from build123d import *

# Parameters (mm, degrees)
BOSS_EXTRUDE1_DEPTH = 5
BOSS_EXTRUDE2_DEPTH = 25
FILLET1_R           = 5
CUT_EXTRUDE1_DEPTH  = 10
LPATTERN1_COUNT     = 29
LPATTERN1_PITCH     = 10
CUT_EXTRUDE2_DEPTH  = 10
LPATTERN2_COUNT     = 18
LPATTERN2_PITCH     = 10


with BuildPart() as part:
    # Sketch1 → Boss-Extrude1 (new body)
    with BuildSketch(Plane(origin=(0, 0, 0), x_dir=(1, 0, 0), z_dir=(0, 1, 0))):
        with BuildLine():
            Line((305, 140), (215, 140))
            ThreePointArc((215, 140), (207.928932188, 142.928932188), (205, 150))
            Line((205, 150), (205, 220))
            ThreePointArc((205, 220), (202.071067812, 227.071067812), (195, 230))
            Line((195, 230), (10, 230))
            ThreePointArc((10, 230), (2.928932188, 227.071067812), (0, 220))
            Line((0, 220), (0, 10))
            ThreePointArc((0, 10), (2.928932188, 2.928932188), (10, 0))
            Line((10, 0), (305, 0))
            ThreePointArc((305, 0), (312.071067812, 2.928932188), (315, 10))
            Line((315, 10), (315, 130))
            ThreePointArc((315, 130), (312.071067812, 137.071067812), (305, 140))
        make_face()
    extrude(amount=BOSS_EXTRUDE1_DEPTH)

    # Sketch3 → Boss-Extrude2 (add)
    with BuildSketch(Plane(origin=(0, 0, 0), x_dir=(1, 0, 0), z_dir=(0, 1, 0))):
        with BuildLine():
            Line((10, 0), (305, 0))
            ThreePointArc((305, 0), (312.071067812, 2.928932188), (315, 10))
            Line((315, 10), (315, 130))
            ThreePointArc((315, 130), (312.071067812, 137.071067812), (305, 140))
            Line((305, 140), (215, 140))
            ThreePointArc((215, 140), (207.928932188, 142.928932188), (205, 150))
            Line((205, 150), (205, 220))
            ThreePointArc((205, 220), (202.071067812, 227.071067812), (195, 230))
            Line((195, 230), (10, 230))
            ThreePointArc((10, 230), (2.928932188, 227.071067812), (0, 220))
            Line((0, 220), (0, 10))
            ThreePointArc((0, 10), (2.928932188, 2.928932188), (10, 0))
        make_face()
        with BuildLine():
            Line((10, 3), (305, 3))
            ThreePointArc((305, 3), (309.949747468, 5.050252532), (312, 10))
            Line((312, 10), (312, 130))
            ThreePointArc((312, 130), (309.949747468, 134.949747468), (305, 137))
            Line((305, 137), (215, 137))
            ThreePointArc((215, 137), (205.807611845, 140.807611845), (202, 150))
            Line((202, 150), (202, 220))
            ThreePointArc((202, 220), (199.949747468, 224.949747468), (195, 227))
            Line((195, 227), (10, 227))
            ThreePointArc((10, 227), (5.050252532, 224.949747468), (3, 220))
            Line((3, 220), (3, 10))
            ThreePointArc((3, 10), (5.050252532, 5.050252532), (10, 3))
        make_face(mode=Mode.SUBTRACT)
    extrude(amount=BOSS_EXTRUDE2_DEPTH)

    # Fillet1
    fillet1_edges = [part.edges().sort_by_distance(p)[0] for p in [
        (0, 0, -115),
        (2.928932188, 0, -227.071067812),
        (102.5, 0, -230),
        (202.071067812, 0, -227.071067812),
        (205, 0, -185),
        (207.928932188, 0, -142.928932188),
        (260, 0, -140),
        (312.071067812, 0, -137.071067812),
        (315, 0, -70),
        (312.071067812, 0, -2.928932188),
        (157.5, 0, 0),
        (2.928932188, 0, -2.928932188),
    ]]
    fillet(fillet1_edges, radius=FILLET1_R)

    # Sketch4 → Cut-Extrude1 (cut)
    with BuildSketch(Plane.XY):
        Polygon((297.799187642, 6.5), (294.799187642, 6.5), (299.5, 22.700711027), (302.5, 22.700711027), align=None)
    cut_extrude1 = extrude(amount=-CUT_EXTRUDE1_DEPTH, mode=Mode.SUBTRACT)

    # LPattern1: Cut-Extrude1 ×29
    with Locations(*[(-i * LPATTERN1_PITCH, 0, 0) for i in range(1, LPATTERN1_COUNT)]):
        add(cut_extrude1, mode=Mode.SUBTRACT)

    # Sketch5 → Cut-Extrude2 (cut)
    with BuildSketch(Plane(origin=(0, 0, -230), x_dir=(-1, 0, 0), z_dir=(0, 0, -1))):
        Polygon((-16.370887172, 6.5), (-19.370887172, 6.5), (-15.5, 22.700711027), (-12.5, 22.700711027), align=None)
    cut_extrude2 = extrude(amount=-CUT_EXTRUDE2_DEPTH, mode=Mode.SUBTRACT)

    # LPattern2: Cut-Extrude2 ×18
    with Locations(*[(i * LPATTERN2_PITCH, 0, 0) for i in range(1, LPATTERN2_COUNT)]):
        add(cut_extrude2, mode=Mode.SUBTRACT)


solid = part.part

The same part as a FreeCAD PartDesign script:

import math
import FreeCAD as App
import Part
import Sketcher
from FreeCAD import Vector


def edges_at(feature, points):
    """Names of the edges that pass closest to the given points."""
    edges = feature.Shape.Edges
    near = lambda p: min(range(len(edges)), key=lambda i: edges[i].distToShape(Part.Vertex(*p))[0])
    return sorted({f"Edge{near(p) + 1}" for p in points})

doc = App.newDocument("Part")
body = doc.addObject("PartDesign::Body", "Body")

# Sketch on XZ plane
sketch1 = body.newObject("Sketcher::SketchObject", "Sketch")
sketch1.AttachmentSupport = (doc.getObject("XZ_Plane"), [""])
sketch1.MapMode = "FlatFace"
sketch1.addGeometry([
    Part.LineSegment(Vector(305, -140, 0), Vector(215, -140, 0)),  # 0
    Part.ArcOfCircle(Part.Circle(Vector(215, -150, 0), Vector(0, 0, 1), 10), math.radians(90), math.radians(180)),  # 1
    Part.LineSegment(Vector(205, -150, 0), Vector(205, -220, 0)),  # 2
    Part.ArcOfCircle(Part.Circle(Vector(195, -220, 0), Vector(0, 0, 1), 10), math.radians(-90), math.radians(0)),  # 3
    Part.LineSegment(Vector(195, -230, 0), Vector(10, -230, 0)),  # 4
    Part.ArcOfCircle(Part.Circle(Vector(10, -220, 0), Vector(0, 0, 1), 10), math.radians(180), math.radians(270)),  # 5
    Part.LineSegment(Vector(0, -220, 0), Vector(0, -10, 0)),  # 6
    Part.ArcOfCircle(Part.Circle(Vector(10, -10, 0), Vector(0, 0, 1), 10), math.radians(90), math.radians(180)),  # 7
    Part.LineSegment(Vector(10, 0, 0), Vector(305, 0, 0)),  # 8
    Part.ArcOfCircle(Part.Circle(Vector(305, -10, 0), Vector(0, 0, 1), 10), math.radians(0), math.radians(90)),  # 9
    Part.LineSegment(Vector(315, -10, 0), Vector(315, -130, 0)),  # 10
    Part.ArcOfCircle(Part.Circle(Vector(305, -130, 0), Vector(0, 0, 1), 10), math.radians(-90), math.radians(0)),  # 11
], False)
sketch1.addConstraint([
    Sketcher.Constraint("Tangent", 0, 2, 1, 1),
    Sketcher.Constraint("Tangent", 1, 2, 2, 1),
    Sketcher.Constraint("Tangent", 2, 2, 3, 2),
    Sketcher.Constraint("Tangent", 3, 1, 4, 1),
    Sketcher.Constraint("Tangent", 4, 2, 5, 2),
    Sketcher.Constraint("Tangent", 5, 1, 6, 1),
    Sketcher.Constraint("Tangent", 6, 2, 7, 2),
    Sketcher.Constraint("Tangent", 7, 1, 8, 1),
    Sketcher.Constraint("Tangent", 8, 2, 9, 2),
    Sketcher.Constraint("Tangent", 9, 1, 10, 1),
    Sketcher.Constraint("Tangent", 10, 2, 11, 2),
    Sketcher.Constraint("Tangent", 11, 1, 0, 1),
    Sketcher.Constraint("Horizontal", 0),
    Sketcher.Constraint("Vertical", 2),
    Sketcher.Constraint("Horizontal", 4),
    Sketcher.Constraint("Vertical", 6),
    Sketcher.Constraint("Horizontal", 8),
    Sketcher.Constraint("Vertical", 10),
    Sketcher.Constraint("Equal", 1, 3),
    Sketcher.Constraint("Equal", 3, 5),
    Sketcher.Constraint("Equal", 5, 7),
    Sketcher.Constraint("Equal", 7, 9),
    Sketcher.Constraint("Equal", 9, 11),
    Sketcher.Constraint("PointOnObject", 5, 1, -2),
    Sketcher.Constraint("PointOnObject", 7, 1, -1),
    Sketcher.Constraint("Radius", 1, 10.0),
    Sketcher.Constraint("DistanceX", 0, 2, 0, 1, 90.0),
    Sketcher.Constraint("DistanceX", 4, 2, 4, 1, 185.0),
    Sketcher.Constraint("DistanceY", 2, 2, 2, 1, 70.0),
    Sketcher.Constraint("DistanceY", 6, 1, 6, 2, 210.0),
])
pad1 = body.newObject("PartDesign::Pad", "Pad")
pad1.Profile = sketch1
pad1.Length = 5
pad1.Reversed = True

# Sketch on XZ plane
sketch2 = body.newObject("Sketcher::SketchObject", "Sketch001")
sketch2.AttachmentSupport = (doc.getObject("XZ_Plane"), [""])
sketch2.MapMode = "FlatFace"
sketch2.addGeometry([
    Part.LineSegment(Vector(10, 0, 0), Vector(305, 0, 0)),  # 0
    Part.ArcOfCircle(Part.Circle(Vector(305, -10, 0), Vector(0, 0, 1), 10), math.radians(0), math.radians(90)),  # 1
    Part.LineSegment(Vector(315, -10, 0), Vector(315, -130, 0)),  # 2
    Part.ArcOfCircle(Part.Circle(Vector(305, -130, 0), Vector(0, 0, 1), 10), math.radians(-90), math.radians(0)),  # 3
    Part.LineSegment(Vector(305, -140, 0), Vector(215, -140, 0)),  # 4
    Part.ArcOfCircle(Part.Circle(Vector(215, -150, 0), Vector(0, 0, 1), 10), math.radians(90), math.radians(180)),  # 5
    Part.LineSegment(Vector(205, -150, 0), Vector(205, -220, 0)),  # 6
    Part.ArcOfCircle(Part.Circle(Vector(195, -220, 0), Vector(0, 0, 1), 10), math.radians(-90), math.radians(0)),  # 7
    Part.LineSegment(Vector(195, -230, 0), Vector(10, -230, 0)),  # 8
    Part.ArcOfCircle(Part.Circle(Vector(10, -220, 0), Vector(0, 0, 1), 10), math.radians(180), math.radians(270)),  # 9
    Part.LineSegment(Vector(0, -220, 0), Vector(0, -10, 0)),  # 10
    Part.ArcOfCircle(Part.Circle(Vector(10, -10, 0), Vector(0, 0, 1), 10), math.radians(90), math.radians(180)),  # 11
    Part.LineSegment(Vector(305, -3, 0), Vector(10, -3, 0)),  # 12
    Part.ArcOfCircle(Part.Circle(Vector(10, -10, 0), Vector(0, 0, 1), 7), math.radians(90), math.radians(180)),  # 13
    Part.LineSegment(Vector(3, -10, 0), Vector(3, -220, 0)),  # 14
    Part.ArcOfCircle(Part.Circle(Vector(10, -220, 0), Vector(0, 0, 1), 7), math.radians(-180), math.radians(-90)),  # 15
    Part.LineSegment(Vector(10, -227, 0), Vector(195, -227, 0)),  # 16
    Part.ArcOfCircle(Part.Circle(Vector(195, -220, 0), Vector(0, 0, 1), 7), math.radians(-90), math.radians(0)),  # 17
    Part.LineSegment(Vector(202, -220, 0), Vector(202, -150, 0)),  # 18
    Part.ArcOfCircle(Part.Circle(Vector(215, -150, 0), Vector(0, 0, 1), 13), math.radians(90), math.radians(180)),  # 19
    Part.LineSegment(Vector(215, -137, 0), Vector(305, -137, 0)),  # 20
    Part.ArcOfCircle(Part.Circle(Vector(305, -130, 0), Vector(0, 0, 1), 7), math.radians(-90), math.radians(0)),  # 21
    Part.LineSegment(Vector(312, -130, 0), Vector(312, -10, 0)),  # 22
    Part.ArcOfCircle(Part.Circle(Vector(305, -10, 0), Vector(0, 0, 1), 7), math.radians(0), math.radians(90)),  # 23
], False)
sketch2.addConstraint([
    Sketcher.Constraint("Tangent", 0, 2, 1, 2),
    Sketcher.Constraint("Tangent", 1, 1, 2, 1),
    Sketcher.Constraint("Tangent", 2, 2, 3, 2),
    Sketcher.Constraint("Tangent", 3, 1, 4, 1),
    Sketcher.Constraint("Tangent", 4, 2, 5, 1),
    Sketcher.Constraint("Tangent", 5, 2, 6, 1),
    Sketcher.Constraint("Tangent", 6, 2, 7, 2),
    Sketcher.Constraint("Tangent", 7, 1, 8, 1),
    Sketcher.Constraint("Tangent", 8, 2, 9, 2),
    Sketcher.Constraint("Tangent", 9, 1, 10, 1),
    Sketcher.Constraint("Tangent", 10, 2, 11, 2),
    Sketcher.Constraint("Tangent", 11, 1, 0, 1),
    Sketcher.Constraint("Tangent", 12, 2, 13, 1),
    Sketcher.Constraint("Tangent", 13, 2, 14, 1),
    Sketcher.Constraint("Tangent", 14, 2, 15, 1),
    Sketcher.Constraint("Tangent", 15, 2, 16, 1),
    Sketcher.Constraint("Tangent", 16, 2, 17, 1),
    Sketcher.Constraint("Tangent", 17, 2, 18, 1),
    Sketcher.Constraint("Tangent", 18, 2, 19, 2),
    Sketcher.Constraint("Tangent", 19, 1, 20, 1),
    Sketcher.Constraint("Tangent", 20, 2, 21, 1),
    Sketcher.Constraint("Tangent", 21, 2, 22, 1),
    Sketcher.Constraint("Tangent", 22, 2, 23, 1),
    Sketcher.Constraint("Tangent", 23, 2, 12, 1),
    Sketcher.Constraint("Horizontal", 0),
    Sketcher.Constraint("Vertical", 2),
    Sketcher.Constraint("Horizontal", 4),
    Sketcher.Constraint("Vertical", 6),
    Sketcher.Constraint("Horizontal", 8),
    Sketcher.Constraint("Vertical", 10),
    Sketcher.Constraint("Horizontal", 12),
    Sketcher.Constraint("Vertical", 14),
    Sketcher.Constraint("Horizontal", 16),
    Sketcher.Constraint("Vertical", 18),
    Sketcher.Constraint("Horizontal", 20),
    Sketcher.Constraint("Vertical", 22),
    Sketcher.Constraint("Coincident", 13, 3, 11, 3),
    Sketcher.Constraint("Coincident", 15, 3, 9, 3),
    Sketcher.Constraint("Coincident", 17, 3, 7, 3),
    Sketcher.Constraint("Coincident", 19, 3, 5, 3),
    Sketcher.Constraint("Coincident", 21, 3, 3, 3),
    Sketcher.Constraint("Equal", 1, 3),
    Sketcher.Constraint("Equal", 3, 5),
    Sketcher.Constraint("Equal", 5, 7),
    Sketcher.Constraint("Equal", 7, 9),
    Sketcher.Constraint("Equal", 9, 11),
    Sketcher.Constraint("Equal", 21, 23),
    Sketcher.Constraint("PointOnObject", 0, 2, -1),
    Sketcher.Constraint("PointOnObject", 9, 1, -2),
    Sketcher.Constraint("Radius", 1, 10.0),
    Sketcher.Constraint("Radius", 13, 7.0),
    Sketcher.Constraint("DistanceX", 0, 1, 0, 2, 295.0),
    Sketcher.Constraint("DistanceX", 4, 2, 4, 1, 90.0),
    Sketcher.Constraint("DistanceY", 2, 2, 2, 1, 120.0),
    Sketcher.Constraint("DistanceY", 6, 2, 6, 1, 70.0),
])
pad2 = body.newObject("PartDesign::Pad", "Pad001")
pad2.Profile = sketch2
pad2.Length = 25
pad2.Reversed = True
doc.recompute()

fillet = body.newObject("PartDesign::Fillet", "Fillet")
fillet.Base = (pad2, edges_at(pad2, [
    (0, 0, -115),
    (2.929, 0, -227.071),
    (102.5, 0, -230),
    (202.071, 0, -227.071),
    (205, 0, -185),
    (207.929, 0, -142.929),
    (260, 0, -140),
    (312.071, 0, -137.071),
    (315, 0, -70),
    (312.071, 0, -2.929),
    (157.5, 0, 0),
    (2.929, 0, -2.929),
]))
fillet.Radius = 5

# Sketch on XY plane
sketch3 = body.newObject("Sketcher::SketchObject", "Sketch002")
sketch3.AttachmentSupport = (doc.getObject("XY_Plane"), [""])
sketch3.MapMode = "FlatFace"
sketch3.addGeometry([
    Part.LineSegment(Vector(294.8, 6.5, 0), Vector(297.8, 6.5, 0)),
    Part.LineSegment(Vector(297.8, 6.5, 0), Vector(302.5, 22.7, 0)),
    Part.LineSegment(Vector(302.5, 22.7, 0), Vector(299.5, 22.7, 0)),
    Part.LineSegment(Vector(299.5, 22.7, 0), Vector(294.8, 6.5, 0)),
], False)
sketch3.addConstraint([
    Sketcher.Constraint("Coincident", 0, 2, 1, 1),
    Sketcher.Constraint("Coincident", 1, 2, 2, 1),
    Sketcher.Constraint("Coincident", 2, 2, 3, 1),
    Sketcher.Constraint("Coincident", 3, 2, 0, 1),
    Sketcher.Constraint("Horizontal", 0),
    Sketcher.Constraint("Horizontal", 2),
    Sketcher.Constraint("Parallel", 1, 3),
    Sketcher.Constraint("DistanceX", 0, 1, 0, 2, 3.0),
    Sketcher.Constraint("DistanceY", -1, 1, 0, 2, 6.5),
    Sketcher.Constraint("DistanceX", -1, 1, 1, 2, 302.5),
    Sketcher.Constraint("DistanceY", -1, 1, 1, 2, 22.700711),
    Sketcher.Constraint("Distance", 1, 16.868926),
])
pocket1 = body.newObject("PartDesign::Pocket", "Pocket")
pocket1.Profile = sketch3
pocket1.Length = 10
doc.recompute()

linearpattern = body.newObject("PartDesign::LinearPattern", "LinearPattern")
linearpattern.Originals = [pocket1]
linearpattern.Direction = (doc.getObject("X_Axis"), [""])
linearpattern.Mode = "offset"
linearpattern.Offset = 10
linearpattern.Occurrences = 29
linearpattern.Reversed = True
body.Tip = linearpattern

# Sketch on XY plane
sketch4 = body.newObject("Sketcher::SketchObject", "Sketch003")
sketch4.AttachmentSupport = (doc.getObject("XY_Plane"), [""])
sketch4.MapMode = "FlatFace"
sketch4.AttachmentOffset = App.Placement(Vector(0, 0, -230), App.Rotation())
sketch4.addGeometry([
    Part.LineSegment(Vector(19.4, 6.5, 0), Vector(16.4, 6.5, 0)),
    Part.LineSegment(Vector(16.4, 6.5, 0), Vector(12.5, 22.7, 0)),
    Part.LineSegment(Vector(12.5, 22.7, 0), Vector(15.5, 22.7, 0)),
    Part.LineSegment(Vector(15.5, 22.7, 0), Vector(19.4, 6.5, 0)),
], False)
sketch4.addConstraint([
    Sketcher.Constraint("Coincident", 0, 2, 1, 1),
    Sketcher.Constraint("Coincident", 1, 2, 2, 1),
    Sketcher.Constraint("Coincident", 2, 2, 3, 1),
    Sketcher.Constraint("Coincident", 3, 2, 0, 1),
    Sketcher.Constraint("Horizontal", 0),
    Sketcher.Constraint("Horizontal", 2),
    Sketcher.Constraint("Parallel", 1, 3),
    Sketcher.Constraint("DistanceX", 0, 2, 0, 1, 3.0),
    Sketcher.Constraint("DistanceY", -1, 1, 0, 2, 6.5),
    Sketcher.Constraint("DistanceX", -1, 1, 1, 2, 12.5),
    Sketcher.Constraint("DistanceY", -1, 1, 1, 2, 22.700711),
    Sketcher.Constraint("Distance", 1, 16.656735),
])
pocket2 = body.newObject("PartDesign::Pocket", "Pocket001")
pocket2.Profile = sketch4
pocket2.Length = 10
pocket2.Reversed = True
doc.recompute()

linearpattern2 = body.newObject("PartDesign::LinearPattern", "LinearPattern001")
linearpattern2.Originals = [pocket2]
linearpattern2.Direction = (doc.getObject("X_Axis"), [""])
linearpattern2.Mode = "offset"
linearpattern2.Offset = 10
linearpattern2.Occurrences = 18
body.Tip = linearpattern2

doc.recompute()
